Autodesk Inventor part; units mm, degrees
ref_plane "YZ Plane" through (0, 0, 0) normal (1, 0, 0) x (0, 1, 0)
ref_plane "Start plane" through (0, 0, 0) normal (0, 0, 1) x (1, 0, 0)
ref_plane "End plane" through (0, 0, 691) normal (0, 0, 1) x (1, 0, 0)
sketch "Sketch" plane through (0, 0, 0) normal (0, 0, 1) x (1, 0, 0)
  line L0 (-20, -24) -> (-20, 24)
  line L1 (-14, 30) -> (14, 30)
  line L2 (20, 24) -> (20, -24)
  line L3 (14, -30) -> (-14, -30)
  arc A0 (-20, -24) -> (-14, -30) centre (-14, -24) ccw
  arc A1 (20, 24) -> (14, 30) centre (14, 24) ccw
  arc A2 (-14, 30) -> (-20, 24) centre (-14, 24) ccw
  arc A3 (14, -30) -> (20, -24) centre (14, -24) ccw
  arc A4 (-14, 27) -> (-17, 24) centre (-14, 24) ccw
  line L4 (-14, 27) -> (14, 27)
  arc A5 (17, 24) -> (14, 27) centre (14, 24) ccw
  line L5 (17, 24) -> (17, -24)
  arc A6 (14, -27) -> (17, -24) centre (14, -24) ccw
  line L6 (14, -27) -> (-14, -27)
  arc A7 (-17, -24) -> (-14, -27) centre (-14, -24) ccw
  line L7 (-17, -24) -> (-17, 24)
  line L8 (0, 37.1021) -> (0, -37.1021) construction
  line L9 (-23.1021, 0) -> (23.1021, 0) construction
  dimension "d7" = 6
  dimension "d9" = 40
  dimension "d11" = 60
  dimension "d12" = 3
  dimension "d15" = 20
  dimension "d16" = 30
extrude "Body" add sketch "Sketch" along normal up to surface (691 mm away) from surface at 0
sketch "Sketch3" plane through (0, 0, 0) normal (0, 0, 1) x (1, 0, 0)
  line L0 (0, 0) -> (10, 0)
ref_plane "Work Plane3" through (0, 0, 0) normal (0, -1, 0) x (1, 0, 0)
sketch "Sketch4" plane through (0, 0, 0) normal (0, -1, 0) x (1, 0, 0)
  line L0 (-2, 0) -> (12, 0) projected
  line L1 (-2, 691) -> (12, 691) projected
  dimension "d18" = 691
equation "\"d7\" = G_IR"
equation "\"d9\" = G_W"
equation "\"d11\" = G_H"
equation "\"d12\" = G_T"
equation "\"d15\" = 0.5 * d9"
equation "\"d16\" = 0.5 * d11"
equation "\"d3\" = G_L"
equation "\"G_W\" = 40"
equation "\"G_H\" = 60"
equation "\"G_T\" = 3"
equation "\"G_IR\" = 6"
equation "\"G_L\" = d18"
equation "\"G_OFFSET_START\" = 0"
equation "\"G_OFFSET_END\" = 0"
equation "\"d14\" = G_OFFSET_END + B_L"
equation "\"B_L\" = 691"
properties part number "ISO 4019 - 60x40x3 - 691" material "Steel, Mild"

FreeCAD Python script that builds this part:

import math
import FreeCAD as App
import Part
import Sketcher

V = App.Vector
Q = App.Units.Quantity

doc = App.newDocument("Part")
params = doc.addObject("Spreadsheet::Sheet", "Params")
for row, (alias, value) in enumerate([
    ("sketch1_radius", "6 mm"),
    ("sketch1_radius2", "3 mm"),
    ("pad1_length", "691 mm"),
], start=1):
    params.set(f"A{row}", alias)
    params.set(f"B{row}", "=" + value)
    params.setAlias(f"B{row}", alias)

body = doc.addObject("PartDesign::Body", "Body")

sketch1 = body.newObject("Sketcher::SketchObject", "Sketch")
sketch1.AttachmentSupport = (doc.getObject("XY_Plane"), [""])
sketch1.MapMode = "FlatFace"
sketch1.addGeometry(Part.LineSegment(V(-20, 24, 0), V(-20, -24, 0)), False)
sketch1.addGeometry(Part.ArcOfCircle(Part.Circle(V(-14, -24, 0), V(0, 0, 1), 6), math.radians(180), math.radians(270)), False)
sketch1.addGeometry(Part.LineSegment(V(-14, -30, 0), V(14, -30, 0)), False)
sketch1.addGeometry(Part.ArcOfCircle(Part.Circle(V(14, -24, 0), V(0, 0, 1), 6), math.radians(-90), math.radians(0)), False)
sketch1.addGeometry(Part.LineSegment(V(20, -24, 0), V(20, 24, 0)), False)
sketch1.addGeometry(Part.ArcOfCircle(Part.Circle(V(14, 24, 0), V(0, 0, 1), 6), math.radians(0), math.radians(90)), False)
sketch1.addGeometry(Part.LineSegment(V(14, 30, 0), V(-14, 30, 0)), False)
sketch1.addGeometry(Part.ArcOfCircle(Part.Circle(V(-14, 24, 0), V(0, 0, 1), 6), math.radians(90), math.radians(180)), False)
sketch1.addGeometry(Part.ArcOfCircle(Part.Circle(V(-14, 24, 0), V(0, 0, 1), 3), math.radians(90), math.radians(180)), False)
sketch1.addGeometry(Part.LineSegment(V(-14, 27, 0), V(14, 27, 0)), False)
sketch1.addGeometry(Part.ArcOfCircle(Part.Circle(V(14, 24, 0), V(0, 0, 1), 3), math.radians(0), math.radians(90)), False)
sketch1.addGeometry(Part.LineSegment(V(17, 24, 0), V(17, -24, 0)), False)
sketch1.addGeometry(Part.ArcOfCircle(Part.Circle(V(14, -24, 0), V(0, 0, 1), 3), math.radians(-90), math.radians(0)), False)
sketch1.addGeometry(Part.LineSegment(V(14, -27, 0), V(-14, -27, 0)), False)
sketch1.addGeometry(Part.ArcOfCircle(Part.Circle(V(-14, -24, 0), V(0, 0, 1), 3), math.radians(180), math.radians(270)), False)
sketch1.addGeometry(Part.LineSegment(V(-17, -24, 0), V(-17, 24, 0)), False)
sketch1.addConstraint(Sketcher.Constraint("Tangent", 0, 2, 1, 1))
sketch1.addConstraint(Sketcher.Constraint("Tangent", 1, 2, 2, 1))
sketch1.addConstraint(Sketcher.Constraint("Tangent", 2, 2, 3, 1))
sketch1.addConstraint(Sketcher.Constraint("Tangent", 3, 2, 4, 1))
sketch1.addConstraint(Sketcher.Constraint("Tangent", 4, 2, 5, 1))
sketch1.addConstraint(Sketcher.Constraint("Tangent", 5, 2, 6, 1))
sketch1.addConstraint(Sketcher.Constraint("Tangent", 6, 2, 7, 1))
sketch1.addConstraint(Sketcher.Constraint("Tangent", 7, 2, 0, 1))
sketch1.addConstraint(Sketcher.Constraint("Tangent", 8, 1, 9, 1))
sketch1.addConstraint(Sketcher.Constraint("Tangent", 9, 2, 10, 2))
sketch1.addConstraint(Sketcher.Constraint("Tangent", 10, 1, 11, 1))
sketch1.addConstraint(Sketcher.Constraint("Tangent", 11, 2, 12, 2))
sketch1.addConstraint(Sketcher.Constraint("Tangent", 12, 1, 13, 1))
sketch1.addConstraint(Sketcher.Constraint("Tangent", 13, 2, 14, 2))
sketch1.addConstraint(Sketcher.Constraint("Tangent", 14, 1, 15, 1))
sketch1.addConstraint(Sketcher.Constraint("Tangent", 15, 2, 8, 2))
sketch1.addConstraint(Sketcher.Constraint("Vertical", 0))
sketch1.addConstraint(Sketcher.Constraint("Horizontal", 2))
sketch1.addConstraint(Sketcher.Constraint("Vertical", 4))
sketch1.addConstraint(Sketcher.Constraint("Horizontal", 6))
sketch1.addConstraint(Sketcher.Constraint("Horizontal", 9))
sketch1.addConstraint(Sketcher.Constraint("Vertical", 11))
sketch1.addConstraint(Sketcher.Constraint("Horizontal", 13))
sketch1.addConstraint(Sketcher.Constraint("Vertical", 15))
sketch1.addConstraint(Sketcher.Constraint("Coincident", 8, 3, 7, 3))
sketch1.addConstraint(Sketcher.Constraint("Coincident", 10, 3, 5, 3))
sketch1.addConstraint(Sketcher.Constraint("Coincident", 12, 3, 3, 3))
sketch1.addConstraint(Sketcher.Constraint("Equal", 1, 3))
sketch1.addConstraint(Sketcher.Constraint("Equal", 3, 5))
sketch1.addConstraint(Sketcher.Constraint("Equal", 5, 7))
sketch1.addConstraint(Sketcher.Constraint("Equal", 12, 14))
sketch1.addConstraint(Sketcher.Constraint("Symmetric", 1, 3, 5, 3, -1, 1))
sketch1.addConstraint(Sketcher.Constraint("Radius", 1, Q("6 mm")))
sketch1.addConstraint(Sketcher.Constraint("Radius", 8, Q("3 mm")))
sketch1.addConstraint(Sketcher.Constraint("DistanceX", 0, 2, -1, 1, Q("20 mm")))
sketch1.addConstraint(Sketcher.Constraint("DistanceY", 1, 2, -1, 1, Q("30 mm")))
sketch1.setExpression("Constraints[32]", "Params.sketch1_radius")
sketch1.setExpression("Constraints[33]", "Params.sketch1_radius2")
pad1 = body.newObject("PartDesign::Pad", "Pad")
pad1.Profile = sketch1
pad1.setExpression("Length", "Params.pad1_length")

doc.recompute()
